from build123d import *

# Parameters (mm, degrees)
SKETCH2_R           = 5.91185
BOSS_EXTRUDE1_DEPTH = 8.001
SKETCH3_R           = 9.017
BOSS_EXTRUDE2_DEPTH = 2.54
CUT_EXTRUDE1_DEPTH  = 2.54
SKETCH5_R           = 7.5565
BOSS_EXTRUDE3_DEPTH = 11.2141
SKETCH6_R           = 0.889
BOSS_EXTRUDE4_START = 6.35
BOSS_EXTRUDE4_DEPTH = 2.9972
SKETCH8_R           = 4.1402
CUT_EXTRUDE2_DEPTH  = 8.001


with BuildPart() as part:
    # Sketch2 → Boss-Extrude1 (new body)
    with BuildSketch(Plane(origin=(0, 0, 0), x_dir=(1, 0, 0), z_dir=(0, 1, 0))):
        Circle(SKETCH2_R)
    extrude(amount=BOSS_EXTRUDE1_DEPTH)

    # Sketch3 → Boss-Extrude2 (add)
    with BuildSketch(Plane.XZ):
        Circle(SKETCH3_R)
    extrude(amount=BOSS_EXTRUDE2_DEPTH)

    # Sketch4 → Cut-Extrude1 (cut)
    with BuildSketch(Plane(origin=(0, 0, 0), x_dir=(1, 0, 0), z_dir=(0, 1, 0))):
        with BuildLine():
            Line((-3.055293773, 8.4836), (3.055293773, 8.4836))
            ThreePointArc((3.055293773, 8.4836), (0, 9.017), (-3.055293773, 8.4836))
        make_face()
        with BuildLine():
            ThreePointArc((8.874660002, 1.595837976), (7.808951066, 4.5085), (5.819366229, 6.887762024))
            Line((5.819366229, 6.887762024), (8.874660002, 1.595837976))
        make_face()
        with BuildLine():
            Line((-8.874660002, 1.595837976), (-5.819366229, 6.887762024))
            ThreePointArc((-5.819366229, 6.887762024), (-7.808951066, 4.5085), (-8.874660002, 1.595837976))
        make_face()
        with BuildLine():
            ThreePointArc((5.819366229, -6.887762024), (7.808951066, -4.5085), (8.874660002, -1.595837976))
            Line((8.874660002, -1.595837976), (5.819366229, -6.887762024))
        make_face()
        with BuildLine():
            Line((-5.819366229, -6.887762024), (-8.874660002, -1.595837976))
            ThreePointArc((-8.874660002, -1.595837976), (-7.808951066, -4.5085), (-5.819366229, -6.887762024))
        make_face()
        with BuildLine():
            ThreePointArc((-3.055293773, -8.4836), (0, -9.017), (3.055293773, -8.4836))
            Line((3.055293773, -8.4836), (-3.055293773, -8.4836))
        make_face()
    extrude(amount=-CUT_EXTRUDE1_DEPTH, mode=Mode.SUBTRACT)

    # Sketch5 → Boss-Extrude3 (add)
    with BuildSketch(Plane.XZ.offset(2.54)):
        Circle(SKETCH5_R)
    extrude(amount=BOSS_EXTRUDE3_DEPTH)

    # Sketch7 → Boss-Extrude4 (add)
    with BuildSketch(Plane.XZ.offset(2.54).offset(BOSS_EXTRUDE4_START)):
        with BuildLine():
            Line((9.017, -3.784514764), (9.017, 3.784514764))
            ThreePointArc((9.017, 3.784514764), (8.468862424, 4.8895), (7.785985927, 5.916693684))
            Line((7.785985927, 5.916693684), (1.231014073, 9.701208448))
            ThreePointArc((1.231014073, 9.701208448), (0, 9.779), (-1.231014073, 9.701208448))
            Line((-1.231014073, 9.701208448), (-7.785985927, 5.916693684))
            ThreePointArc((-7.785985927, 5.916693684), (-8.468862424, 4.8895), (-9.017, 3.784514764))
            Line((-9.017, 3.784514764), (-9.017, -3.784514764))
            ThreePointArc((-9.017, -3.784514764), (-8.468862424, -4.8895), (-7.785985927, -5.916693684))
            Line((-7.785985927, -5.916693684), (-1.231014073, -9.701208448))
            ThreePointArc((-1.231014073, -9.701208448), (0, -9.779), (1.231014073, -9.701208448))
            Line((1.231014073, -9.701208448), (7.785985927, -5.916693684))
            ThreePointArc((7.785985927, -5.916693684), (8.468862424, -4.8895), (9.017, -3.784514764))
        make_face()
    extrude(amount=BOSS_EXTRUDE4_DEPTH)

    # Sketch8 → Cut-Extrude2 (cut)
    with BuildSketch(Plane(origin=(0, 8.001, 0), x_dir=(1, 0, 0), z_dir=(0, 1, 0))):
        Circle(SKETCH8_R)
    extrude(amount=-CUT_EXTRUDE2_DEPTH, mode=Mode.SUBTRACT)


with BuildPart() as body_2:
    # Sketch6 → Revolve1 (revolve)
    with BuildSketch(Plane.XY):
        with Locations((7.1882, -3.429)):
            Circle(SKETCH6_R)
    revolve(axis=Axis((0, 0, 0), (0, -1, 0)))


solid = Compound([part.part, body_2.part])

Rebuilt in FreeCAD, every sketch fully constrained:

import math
import FreeCAD as App
import Part
import Sketcher
from FreeCAD import Vector
Q = App.Units.Quantity

doc = App.newDocument("Part")
body = doc.addObject("PartDesign::Body", "Body")

sketch1 = doc.addObject("Sketcher::SketchObject", "Sketch")
body.addObject(sketch1)
sketch1.AttachmentSupport = (doc.XZ_Plane, [""])
sketch1.MapMode = "FlatFace"
sketch1.addGeometry(Part.Circle(Vector(0, 0, 0), Vector(0, 0, 1), 6), False)
sketch1.addConstraint(Sketcher.Constraint("Coincident", 0, 3, -1, 1))
sketch1.addConstraint(Sketcher.Constraint("Diameter", 0, Q("0.4655 in")))
pad1 = doc.addObject("PartDesign::Pad", "Pad")
body.addObject(pad1)
pad1.Profile = sketch1
pad1.Length = Q("0.315 in")
pad1.Reversed = True

sketch2 = doc.addObject("Sketcher::SketchObject", "Sketch001")
body.addObject(sketch2)
sketch2.AttachmentSupport = (doc.XZ_Plane, [""])
sketch2.MapMode = "FlatFace"
sketch2.addGeometry(Part.Circle(Vector(0, 0, 0), Vector(0, 0, 1), 9), False)
sketch2.addConstraint(Sketcher.Constraint("Coincident", 0, 3, -1, 1))
sketch2.addConstraint(Sketcher.Constraint("Diameter", 0, Q("0.71 in")))
pad2 = doc.addObject("PartDesign::Pad", "Pad001")
body.addObject(pad2)
pad2.Profile = sketch2
pad2.Length = Q("0.1 in")

sketch3 = doc.addObject("Sketcher::SketchObject", "Sketch002")
body.addObject(sketch3)
sketch3.AttachmentSupport = (doc.XZ_Plane, [""])
sketch3.MapMode = "FlatFace"
sketch3.addGeometry(Part.LineSegment(Vector(-3, -8, 0), Vector(3, -8, 0)), False)
sketch3.addGeometry(Part.ArcOfCircle(Part.Circle(Vector(0, 0, 0), Vector(0, 0, 1), 9), math.radians(-110), math.radians(-70)), False)
sketch3.addGeometry(Part.ArcOfCircle(Part.Circle(Vector(0, 0, 0), Vector(0, 0, 1), 9), math.radians(-50), math.radians(-10)), False)
sketch3.addGeometry(Part.LineSegment(Vector(6, -7, 0), Vector(9, -2, 0)), False)
sketch3.addGeometry(Part.LineSegment(Vector(-9, -2, 0), Vector(-6, -7, 0)), False)
sketch3.addGeometry(Part.ArcOfCircle(Part.Circle(Vector(0, 0, 0), Vector(0, 0, 1), 9), math.radians(-170), math.radians(-130)), False)
sketch3.addGeometry(Part.ArcOfCircle(Part.Circle(Vector(0, 0, 0), Vector(0, 0, 1), 9), math.radians(10), math.radians(50)), False)
sketch3.addGeometry(Part.LineSegment(Vector(9, 2, 0), Vector(6, 7, 0)), False)
sketch3.addGeometry(Part.LineSegment(Vector(-6, 7, 0), Vector(-9, 2, 0)), False)
sketch3.addGeometry(Part.ArcOfCircle(Part.Circle(Vector(0, 0, 0), Vector(0, 0, 1), 9), math.radians(130), math.radians(170)), False)
sketch3.addGeometry(Part.ArcOfCircle(Part.Circle(Vector(0, 0, 0), Vector(0, 0, 1), 9), math.radians(70), math.radians(110)), False)
sketch3.addGeometry(Part.LineSegment(Vector(3, 8, 0), Vector(-3, 8, 0)), False)
sketch3.addConstraint(Sketcher.Constraint("Coincident", 0, 1, 1, 1))
sketch3.addConstraint(Sketcher.Constraint("Coincident", 1, 2, 0, 2))
sketch3.addConstraint(Sketcher.Constraint("Coincident", 2, 1, 3, 1))
sketch3.addConstraint(Sketcher.Constraint("Coincident", 3, 2, 2, 2))
sketch3.addConstraint(Sketcher.Constraint("Coincident", 4, 1, 5, 1))
sketch3.addConstraint(Sketcher.Constraint("Coincident", 5, 2, 4, 2))
sketch3.addConstraint(Sketcher.Constraint("Coincident", 6, 1, 7, 1))
sketch3.addConstraint(Sketcher.Constraint("Coincident", 7, 2, 6, 2))
sketch3.addConstraint(Sketcher.Constraint("Coincident", 8, 1, 9, 1))
sketch3.addConstraint(Sketcher.Constraint("Coincident", 9, 2, 8, 2))
sketch3.addConstraint(Sketcher.Constraint("Coincident", 10, 1, 11, 1))
sketch3.addConstraint(Sketcher.Constraint("Coincident", 11, 2, 10, 2))
sketch3.addConstraint(Sketcher.Constraint("Horizontal", 0))
sketch3.addConstraint(Sketcher.Constraint("Horizontal", 11))
sketch3.addConstraint(Sketcher.Constraint("Coincident", 1, 3, -1, 1))
sketch3.addConstraint(Sketcher.Constraint("Coincident", 2, 3, -1, 1))
sketch3.addConstraint(Sketcher.Constraint("Coincident", 5, 3, -1, 1))
sketch3.addConstraint(Sketcher.Constraint("Coincident", 6, 3, -1, 1))
sketch3.addConstraint(Sketcher.Constraint("Coincident", 9, 3, -1, 1))
sketch3.addConstraint(Sketcher.Constraint("Coincident", 10, 3, -1, 1))
sketch3.addConstraint(Sketcher.Constraint("Equal", 1, 2))
sketch3.addConstraint(Sketcher.Constraint("Equal", 2, 5))
sketch3.addConstraint(Sketcher.Constraint("Equal", 5, 6))
sketch3.addConstraint(Sketcher.Constraint("Equal", 6, 9))
sketch3.addConstraint(Sketcher.Constraint("Equal", 9, 10))
sketch3.addConstraint(Sketcher.Constraint("Parallel", 4, 7))
sketch3.addConstraint(Sketcher.Constraint("Parallel", 3, 8))
sketch3.addConstraint(Sketcher.Constraint("Horizontal", 3, 2, 4, 1))
sketch3.addConstraint(Sketcher.Constraint("Horizontal", 2, 1, 5, 2))
sketch3.addConstraint(Sketcher.Constraint("Horizontal", 7, 2, 8, 1))
sketch3.addConstraint(Sketcher.Constraint("Vertical", 3, 2, 6, 1))
sketch3.addConstraint(Sketcher.Constraint("Vertical", 1, 2, 10, 1))
sketch3.addConstraint(Sketcher.Constraint("Angle", 3, Q("60 deg")))
sketch3.addConstraint(Sketcher.Constraint("Radius", 1, Q("0.355 in")))
sketch3.addConstraint(Sketcher.Constraint("DistanceY", 0, 1, -1, 1, Q("0.334 in")))
sketch3.addConstraint(Sketcher.Constraint("DistanceY", 2, 1, 6, 1, Q("0.334 in")))
pocket1 = doc.addObject("PartDesign::Pocket", "Pocket")
body.addObject(pocket1)
pocket1.Profile = sketch3
pocket1.Length = Q("0.1 in")
pocket1.Reversed = True

sketch4 = doc.addObject("Sketcher::SketchObject", "Sketch003")
body.addObject(sketch4)
sketch4.AttachmentSupport = (doc.XZ_Plane, [""])
sketch4.MapMode = "FlatFace"
sketch4.AttachmentOffset = App.Placement(Vector(0, 0, 0.1 * 25.4), App.Rotation())
sketch4.addGeometry(Part.Circle(Vector(0, 0, 0), Vector(0, 0, 1), 8), False)
sketch4.addConstraint(Sketcher.Constraint("Coincident", 0, 3, -1, 1))
sketch4.addConstraint(Sketcher.Constraint("Diameter", 0, Q("0.595 in")))
pad3 = doc.addObject("PartDesign::Pad", "Pad002")
body.addObject(pad3)
pad3.Profile = sketch4
pad3.Length = Q("0.4415 in")

sketch5 = doc.addObject("Sketcher::SketchObject", "Sketch004")
body.addObject(sketch5)
sketch5.AttachmentSupport = (doc.XZ_Plane, [""])
sketch5.MapMode = "FlatFace"
sketch5.AttachmentOffset = App.Placement(Vector(0, 0, 0.35 * 25.4), App.Rotation())
sketch5.addGeometry(Part.LineSegment(Vector(9, -3.8, 0), Vector(9, 3.8, 0)), False)
sketch5.addGeometry(Part.ArcOfCircle(Part.Circle(Vector(0, 0, 0), Vector(0, 0, 1), 9.8), math.radians(22.77), math.radians(37.23)), False)
sketch5.addGeometry(Part.LineSegment(Vector(7.8, 5.9, 0), Vector(1.2, 9.7, 0)), False)
sketch5.addGeometry(Part.ArcOfCircle(Part.Circle(Vector(0, 0, 0), Vector(0, 0, 1), 9.8), math.radians(82.77), math.radians(97.23)), False)
sketch5.addGeometry(Part.LineSegment(Vector(-1.2, 9.7, 0), Vector(-7.8, 5.9, 0)), False)
sketch5.addGeometry(Part.ArcOfCircle(Part.Circle(Vector(0, 0, 0), Vector(0, 0, 1), 9.8), math.radians(142.77), math.radians(157.23)), False)
sketch5.addGeometry(Part.LineSegment(Vector(-9, 3.8, 0), Vector(-9, -3.8, 0)), False)
sketch5.addGeometry(Part.ArcOfCircle(Part.Circle(Vector(0, 0, 0), Vector(0, 0, 1), 9.8), math.radians(-157.23), math.radians(-142.77)), False)
sketch5.addGeometry(Part.LineSegment(Vector(-7.8, -5.9, 0), Vector(-1.2, -9.7, 0)), False)
sketch5.addGeometry(Part.ArcOfCircle(Part.Circle(Vector(0, 0, 0), Vector(0, 0, 1), 9.8), math.radians(-97.23), math.radians(-82.77)), False)
sketch5.addGeometry(Part.LineSegment(Vector(1.2, -9.7, 0), Vector(7.8, -5.9, 0)), False)
sketch5.addGeometry(Part.ArcOfCircle(Part.Circle(Vector(0, 0, 0), Vector(0, 0, 1), 9.8), math.radians(-37.23), math.radians(-22.77)), False)
sketch5.addConstraint(Sketcher.Constraint("Coincident", 0, 2, 1, 1))
sketch5.addConstraint(Sketcher.Constraint("Coincident", 1, 2, 2, 1))
sketch5.addConstraint(Sketcher.Constraint("Coincident", 2, 2, 3, 1))
sketch5.addConstraint(Sketcher.Constraint("Coincident", 3, 2, 4, 1))
sketch5.addConstraint(Sketcher.Constraint("Coincident", 4, 2, 5, 1))
sketch5.addConstraint(Sketcher.Constraint("Coincident", 5, 2, 6, 1))
sketch5.addConstraint(Sketcher.Constraint("Coincident", 6, 2, 7, 1))
sketch5.addConstraint(Sketcher.Constraint("Coincident", 7, 2, 8, 1))
sketch5.addConstraint(Sketcher.Constraint("Coincident", 8, 2, 9, 1))
sketch5.addConstraint(Sketcher.Constraint("Coincident", 9, 2, 10, 1))
sketch5.addConstraint(Sketcher.Constraint("Coincident", 10, 2, 11, 1))
sketch5.addConstraint(Sketcher.Constraint("Coincident", 11, 2, 0, 1))
sketch5.addConstraint(Sketcher.Constraint("Vertical", 0))
sketch5.addConstraint(Sketcher.Constraint("Vertical", 6))
sketch5.addConstraint(Sketcher.Constraint("Coincident", 1, 3, -1, 1))
sketch5.addConstraint(Sketcher.Constraint("Coincident", 3, 3, -1, 1))
sketch5.addConstraint(Sketcher.Constraint("Coincident", 5, 3, -1, 1))
sketch5.addConstraint(Sketcher.Constraint("Coincident", 7, 3, -1, 1))
sketch5.addConstraint(Sketcher.Constraint("Coincident", 9, 3, -1, 1))
sketch5.addConstraint(Sketcher.Constraint("Coincident", 11, 3, -1, 1))
sketch5.addConstraint(Sketcher.Constraint("Equal", 1, 3))
sketch5.addConstraint(Sketcher.Constraint("Equal", 3, 5))
sketch5.addConstraint(Sketcher.Constraint("Equal", 5, 7))
sketch5.addConstraint(Sketcher.Constraint("Equal", 7, 9))
sketch5.addConstraint(Sketcher.Constraint("Equal", 9, 11))
sketch5.addConstraint(Sketcher.Constraint("Parallel", 2, 8))
sketch5.addConstraint(Sketcher.Constraint("Parallel", 4, 10))
sketch5.addConstraint(Sketcher.Constraint("Horizontal", 2, 2, 3, 2))
sketch5.addConstraint(Sketcher.Constraint("Horizontal", 1, 2, 4, 2))
sketch5.addConstraint(Sketcher.Constraint("Horizontal", 0, 2, 5, 2))
sketch5.addConstraint(Sketcher.Constraint("Horizontal", 8, 2, 9, 2))
sketch5.addConstraint(Sketcher.Constraint("Vertical", 4, 2, 7, 2))
sketch5.addConstraint(Sketcher.Constraint("Angle", 2, Q("150 deg")))
sketch5.addConstraint(Sketcher.Constraint("Radius", 1, Q("0.385 in")))
sketch5.addConstraint(Sketcher.Constraint("DistanceX", -1, 1, 0, 2, Q("0.355 in")))
sketch5.addConstraint(Sketcher.Constraint("DistanceX", 3, 2, 1, 2, Q("0.355 in")))
pad4 = doc.addObject("PartDesign::Pad", "Pad003")
body.addObject(pad4)
pad4.Profile = sketch5
pad4.Length = Q("0.118 in")

sketch6 = doc.addObject("Sketcher::SketchObject", "Sketch005")
body.addObject(sketch6)
sketch6.AttachmentSupport = (doc.XZ_Plane, [""])
sketch6.MapMode = "FlatFace"
sketch6.AttachmentOffset = App.Placement(Vector(0, 0, -0.315 * 25.4), App.Rotation())
sketch6.addGeometry(Part.Circle(Vector(0, 0, 0), Vector(0, 0, 1), 4.1), False)
sketch6.addConstraint(Sketcher.Constraint("Coincident", 0, 3, -1, 1))
sketch6.addConstraint(Sketcher.Constraint("Diameter", 0, Q("0.326 in")))
pocket2 = doc.addObject("PartDesign::Pocket", "Pocket001")
body.addObject(pocket2)
pocket2.Profile = sketch6
pocket2.Length = Q("0.315 in")
pocket2.Reversed = True
body2 = doc.addObject("PartDesign::Body", "Body001")

sketch7 = doc.addObject("Sketcher::SketchObject", "Sketch006")
body2.addObject(sketch7)
sketch7.AttachmentSupport = (doc.getObject("XY_Plane001"), [""])
sketch7.MapMode = "FlatFace"
sketch7.addGeometry(Part.Circle(Vector(7.2, -3.4, 0), Vector(0, 0, 1), 0.9), False)
sketch7.addConstraint(Sketcher.Constraint("Diameter", 0, Q("0.07 in")))
sketch7.addConstraint(Sketcher.Constraint("DistanceX", -1, 1, 0, 3, Q("0.283 in")))
sketch7.addConstraint(Sketcher.Constraint("DistanceY", 0, 3, -1, 1, Q("0.135 in")))
revolution = doc.addObject("PartDesign::Revolution", "Revolution")
body2.addObject(revolution)
revolution.Profile = sketch7
revolution.ReferenceAxis = (sketch7, ["V_Axis"])
revolution.Angle = 360

doc.recompute()
